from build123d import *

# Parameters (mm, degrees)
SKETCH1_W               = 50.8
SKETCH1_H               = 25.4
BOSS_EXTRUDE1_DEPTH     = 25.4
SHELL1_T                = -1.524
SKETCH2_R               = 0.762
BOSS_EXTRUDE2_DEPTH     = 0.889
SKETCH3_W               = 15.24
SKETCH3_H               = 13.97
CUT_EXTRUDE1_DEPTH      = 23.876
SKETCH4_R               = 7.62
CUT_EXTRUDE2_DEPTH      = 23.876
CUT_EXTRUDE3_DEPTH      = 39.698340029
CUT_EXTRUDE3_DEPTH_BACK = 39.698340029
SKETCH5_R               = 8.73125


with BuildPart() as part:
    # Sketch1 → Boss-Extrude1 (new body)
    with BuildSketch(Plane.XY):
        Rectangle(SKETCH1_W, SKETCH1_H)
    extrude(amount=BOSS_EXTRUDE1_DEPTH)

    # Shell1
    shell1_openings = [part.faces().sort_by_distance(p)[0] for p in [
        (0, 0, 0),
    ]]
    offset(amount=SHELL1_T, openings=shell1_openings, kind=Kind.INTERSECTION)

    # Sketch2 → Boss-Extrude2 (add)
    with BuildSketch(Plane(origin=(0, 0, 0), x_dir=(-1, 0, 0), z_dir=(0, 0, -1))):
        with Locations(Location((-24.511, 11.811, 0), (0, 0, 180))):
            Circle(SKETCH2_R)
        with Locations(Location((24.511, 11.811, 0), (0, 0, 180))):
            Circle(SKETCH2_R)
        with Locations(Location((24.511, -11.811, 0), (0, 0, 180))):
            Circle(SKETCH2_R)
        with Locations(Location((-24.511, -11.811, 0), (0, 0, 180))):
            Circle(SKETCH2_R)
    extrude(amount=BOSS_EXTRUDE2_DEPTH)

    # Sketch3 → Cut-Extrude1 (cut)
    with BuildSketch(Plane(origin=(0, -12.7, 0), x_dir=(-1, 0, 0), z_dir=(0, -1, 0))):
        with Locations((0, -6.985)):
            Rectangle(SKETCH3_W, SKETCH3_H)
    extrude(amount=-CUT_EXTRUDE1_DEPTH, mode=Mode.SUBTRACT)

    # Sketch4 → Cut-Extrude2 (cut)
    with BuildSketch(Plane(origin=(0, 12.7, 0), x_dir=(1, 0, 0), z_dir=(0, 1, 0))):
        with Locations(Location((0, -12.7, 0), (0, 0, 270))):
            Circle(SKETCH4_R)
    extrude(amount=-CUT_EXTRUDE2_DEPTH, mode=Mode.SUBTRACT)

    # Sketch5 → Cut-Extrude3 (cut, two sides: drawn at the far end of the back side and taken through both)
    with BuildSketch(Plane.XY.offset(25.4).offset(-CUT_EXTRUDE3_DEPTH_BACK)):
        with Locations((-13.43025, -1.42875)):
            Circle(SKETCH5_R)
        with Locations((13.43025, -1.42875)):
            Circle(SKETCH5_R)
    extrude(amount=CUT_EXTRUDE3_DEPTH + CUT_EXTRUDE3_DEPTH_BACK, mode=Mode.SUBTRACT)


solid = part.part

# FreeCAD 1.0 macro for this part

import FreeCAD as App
import Part
import Sketcher

V = App.Vector
Q = App.Units.Quantity


def faces_at(feature, points):
    """Names of the faces that lie closest to the given points."""
    faces = feature.Shape.Faces
    near = lambda p: min(range(len(faces)), key=lambda i: faces[i].distToShape(Part.Vertex(*p))[0])
    return sorted({f"Face{near(p) + 1}" for p in points})


def add_polygon(sketch, points):
    """Adds a closed chain of lines whose ends are joined by coincident constraints."""
    first, n = sketch.GeometryCount, len(points)
    for a, b in zip(points, points[1:] + points[:1]):
        sketch.addGeometry(Part.LineSegment(App.Vector(*a, 0), App.Vector(*b, 0)), False)
    for i in range(n):
        sketch.addConstraint(Sketcher.Constraint("Coincident", first + i, 2, first + (i + 1) % n, 1))

doc = App.newDocument("Part")
body = doc.addObject("PartDesign::Body", "Body")

# Sketch on XY plane
sketch1 = body.newObject("Sketcher::SketchObject", "Sketch")
sketch1.AttachmentSupport = (doc.getObject("XY_Plane"), [""])
sketch1.MapMode = "FlatFace"
add_polygon(sketch1, [(-25, 13), (-25, -13), (25, -13), (25, 13)])  # lines 0-3
sketch1.addConstraint(Sketcher.Constraint("Vertical", 0))
sketch1.addConstraint(Sketcher.Constraint("Horizontal", 1))
sketch1.addConstraint(Sketcher.Constraint("Vertical", 2))
sketch1.addConstraint(Sketcher.Constraint("Horizontal", 3))
sketch1.addConstraint(Sketcher.Constraint("Symmetric", 0, 2, 2, 2, -1, 1))
sketch1.addConstraint(Sketcher.Constraint("DistanceX", 1, 1, 1, 2, Q("2 in")))
sketch1.addConstraint(Sketcher.Constraint("DistanceY", 0, 2, 0, 1, Q("1 in")))
pad1 = body.newObject("PartDesign::Pad", "Pad")
pad1.Profile = sketch1
pad1.Length = Q("1 in")
doc.recompute()

thickness = body.newObject("PartDesign::Thickness", "Thickness")
thickness.Base = (pad1, faces_at(pad1, [(0, 0, 0)]))
thickness.Value = Q("0.06 in")
thickness.Reversed = True
thickness.Join = "Intersection"

# Sketch on XY plane
sketch2 = body.newObject("Sketcher::SketchObject", "Sketch001")
sketch2.AttachmentSupport = (doc.getObject("XY_Plane"), [""])
sketch2.MapMode = "FlatFace"
sketch2.addGeometry(Part.Circle(V(24.5, 11.8, 0), V(0, 0, 1), 0.8), False)
sketch2.addGeometry(Part.Circle(V(-24.5, 11.8, 0), V(0, 0, 1), 0.8), False)
sketch2.addGeometry(Part.Circle(V(-24.5, -11.8, 0), V(0, 0, 1), 0.8), False)
sketch2.addGeometry(Part.Circle(V(24.5, -11.8, 0), V(0, 0, 1), 0.8), False)
sketch2.addConstraint(Sketcher.Constraint("Equal", 0, 1))
sketch2.addConstraint(Sketcher.Constraint("Equal", 1, 2))
sketch2.addConstraint(Sketcher.Constraint("Equal", 2, 3))
sketch2.addConstraint(Sketcher.Constraint("Symmetric", 0, 3, 2, 3, -1, 1))
sketch2.addConstraint(Sketcher.Constraint("Symmetric", 1, 3, 3, 3, -1, 1))
sketch2.addConstraint(Sketcher.Constraint("Symmetric", 0, 3, 1, 3, -2))
sketch2.addConstraint(Sketcher.Constraint("Diameter", 0, Q("0.06 in")))
sketch2.addConstraint(Sketcher.Constraint("DistanceX", 1, 3, 0, 3, Q("1.93 in")))
sketch2.addConstraint(Sketcher.Constraint("DistanceY", 2, 3, 1, 3, Q("0.93 in")))
pad2 = body.newObject("PartDesign::Pad", "Pad001")
pad2.Profile = sketch2
pad2.Length = Q("0.035 in")
pad2.Reversed = True

# Sketch on XZ plane
sketch3 = body.newObject("Sketcher::SketchObject", "Sketch002")
sketch3.AttachmentSupport = (doc.getObject("XZ_Plane"), [""])
sketch3.MapMode = "FlatFace"
sketch3.AttachmentOffset = App.Placement(V(0, 0, 0.5 * 25.4), App.Rotation())
add_polygon(sketch3, [(8, 0), (8, 14), (-8, 14), (-8, 0)])  # lines 0-3
sketch3.addConstraint(Sketcher.Constraint("Vertical", 0))
sketch3.addConstraint(Sketcher.Constraint("Horizontal", 1))
sketch3.addConstraint(Sketcher.Constraint("Vertical", 2))
sketch3.addConstraint(Sketcher.Constraint("Horizontal", 3))
sketch3.addConstraint(Sketcher.Constraint("Symmetric", 2, 2, 3, 2, -1, 1))
sketch3.addConstraint(Sketcher.Constraint("DistanceX", 1, 2, 1, 1, Q("0.6 in")))
sketch3.addConstraint(Sketcher.Constraint("DistanceY", 0, 1, 0, 2, Q("0.55 in")))
pocket1 = body.newObject("PartDesign::Pocket", "Pocket")
pocket1.Profile = sketch3
pocket1.Length = Q("0.94 in")

# Sketch on XZ plane
sketch4 = body.newObject("Sketcher::SketchObject", "Sketch003")
sketch4.AttachmentSupport = (doc.getObject("XZ_Plane"), [""])
sketch4.MapMode = "FlatFace"
sketch4.AttachmentOffset = App.Placement(V(0, 0, -0.5 * 25.4), App.Rotation())
sketch4.addGeometry(Part.Circle(V(0, 13, 0), V(0, 0, 1), 8), False)
sketch4.addConstraint(Sketcher.Constraint("PointOnObject", 0, 3, -2))
sketch4.addConstraint(Sketcher.Constraint("Diameter", 0, Q("0.6 in")))
sketch4.addConstraint(Sketcher.Constraint("DistanceY", -1, 1, 0, 3, Q("0.5 in")))
pocket2 = body.newObject("PartDesign::Pocket", "Pocket001")
pocket2.Profile = sketch4
pocket2.Length = Q("0.94 in")
pocket2.Reversed = True

# Sketch on XY plane
sketch5 = body.newObject("Sketcher::SketchObject", "Sketch004")
sketch5.AttachmentSupport = (doc.getObject("XY_Plane"), [""])
sketch5.MapMode = "FlatFace"
sketch5.AttachmentOffset = App.Placement(V(0, 0, 1 * 25.4), App.Rotation())
sketch5.addGeometry(Part.Circle(V(-13, -1, 0), V(0, 0, 1), 9), False)
sketch5.addGeometry(Part.Circle(V(13, -1, 0), V(0, 0, 1), 9), False)
sketch5.addConstraint(Sketcher.Constraint("Equal", 0, 1))
sketch5.addConstraint(Sketcher.Constraint("Symmetric", 0, 3, 1, 3, -2))
sketch5.addConstraint(Sketcher.Constraint("Diameter", 0, Q("0.6875 in")))
sketch5.addConstraint(Sketcher.Constraint("DistanceX", 0, 3, 1, 3, Q("1.0575 in")))
sketch5.addConstraint(Sketcher.Constraint("DistanceY", 0, 3, -1, 1, Q("1.42875 mm")))
pocket3 = body.newObject("PartDesign::Pocket", "Pocket002")
pocket3.Profile = sketch5
pocket3.Type = "ThroughAll"
pocket3.Midplane = True

doc.recompute()
